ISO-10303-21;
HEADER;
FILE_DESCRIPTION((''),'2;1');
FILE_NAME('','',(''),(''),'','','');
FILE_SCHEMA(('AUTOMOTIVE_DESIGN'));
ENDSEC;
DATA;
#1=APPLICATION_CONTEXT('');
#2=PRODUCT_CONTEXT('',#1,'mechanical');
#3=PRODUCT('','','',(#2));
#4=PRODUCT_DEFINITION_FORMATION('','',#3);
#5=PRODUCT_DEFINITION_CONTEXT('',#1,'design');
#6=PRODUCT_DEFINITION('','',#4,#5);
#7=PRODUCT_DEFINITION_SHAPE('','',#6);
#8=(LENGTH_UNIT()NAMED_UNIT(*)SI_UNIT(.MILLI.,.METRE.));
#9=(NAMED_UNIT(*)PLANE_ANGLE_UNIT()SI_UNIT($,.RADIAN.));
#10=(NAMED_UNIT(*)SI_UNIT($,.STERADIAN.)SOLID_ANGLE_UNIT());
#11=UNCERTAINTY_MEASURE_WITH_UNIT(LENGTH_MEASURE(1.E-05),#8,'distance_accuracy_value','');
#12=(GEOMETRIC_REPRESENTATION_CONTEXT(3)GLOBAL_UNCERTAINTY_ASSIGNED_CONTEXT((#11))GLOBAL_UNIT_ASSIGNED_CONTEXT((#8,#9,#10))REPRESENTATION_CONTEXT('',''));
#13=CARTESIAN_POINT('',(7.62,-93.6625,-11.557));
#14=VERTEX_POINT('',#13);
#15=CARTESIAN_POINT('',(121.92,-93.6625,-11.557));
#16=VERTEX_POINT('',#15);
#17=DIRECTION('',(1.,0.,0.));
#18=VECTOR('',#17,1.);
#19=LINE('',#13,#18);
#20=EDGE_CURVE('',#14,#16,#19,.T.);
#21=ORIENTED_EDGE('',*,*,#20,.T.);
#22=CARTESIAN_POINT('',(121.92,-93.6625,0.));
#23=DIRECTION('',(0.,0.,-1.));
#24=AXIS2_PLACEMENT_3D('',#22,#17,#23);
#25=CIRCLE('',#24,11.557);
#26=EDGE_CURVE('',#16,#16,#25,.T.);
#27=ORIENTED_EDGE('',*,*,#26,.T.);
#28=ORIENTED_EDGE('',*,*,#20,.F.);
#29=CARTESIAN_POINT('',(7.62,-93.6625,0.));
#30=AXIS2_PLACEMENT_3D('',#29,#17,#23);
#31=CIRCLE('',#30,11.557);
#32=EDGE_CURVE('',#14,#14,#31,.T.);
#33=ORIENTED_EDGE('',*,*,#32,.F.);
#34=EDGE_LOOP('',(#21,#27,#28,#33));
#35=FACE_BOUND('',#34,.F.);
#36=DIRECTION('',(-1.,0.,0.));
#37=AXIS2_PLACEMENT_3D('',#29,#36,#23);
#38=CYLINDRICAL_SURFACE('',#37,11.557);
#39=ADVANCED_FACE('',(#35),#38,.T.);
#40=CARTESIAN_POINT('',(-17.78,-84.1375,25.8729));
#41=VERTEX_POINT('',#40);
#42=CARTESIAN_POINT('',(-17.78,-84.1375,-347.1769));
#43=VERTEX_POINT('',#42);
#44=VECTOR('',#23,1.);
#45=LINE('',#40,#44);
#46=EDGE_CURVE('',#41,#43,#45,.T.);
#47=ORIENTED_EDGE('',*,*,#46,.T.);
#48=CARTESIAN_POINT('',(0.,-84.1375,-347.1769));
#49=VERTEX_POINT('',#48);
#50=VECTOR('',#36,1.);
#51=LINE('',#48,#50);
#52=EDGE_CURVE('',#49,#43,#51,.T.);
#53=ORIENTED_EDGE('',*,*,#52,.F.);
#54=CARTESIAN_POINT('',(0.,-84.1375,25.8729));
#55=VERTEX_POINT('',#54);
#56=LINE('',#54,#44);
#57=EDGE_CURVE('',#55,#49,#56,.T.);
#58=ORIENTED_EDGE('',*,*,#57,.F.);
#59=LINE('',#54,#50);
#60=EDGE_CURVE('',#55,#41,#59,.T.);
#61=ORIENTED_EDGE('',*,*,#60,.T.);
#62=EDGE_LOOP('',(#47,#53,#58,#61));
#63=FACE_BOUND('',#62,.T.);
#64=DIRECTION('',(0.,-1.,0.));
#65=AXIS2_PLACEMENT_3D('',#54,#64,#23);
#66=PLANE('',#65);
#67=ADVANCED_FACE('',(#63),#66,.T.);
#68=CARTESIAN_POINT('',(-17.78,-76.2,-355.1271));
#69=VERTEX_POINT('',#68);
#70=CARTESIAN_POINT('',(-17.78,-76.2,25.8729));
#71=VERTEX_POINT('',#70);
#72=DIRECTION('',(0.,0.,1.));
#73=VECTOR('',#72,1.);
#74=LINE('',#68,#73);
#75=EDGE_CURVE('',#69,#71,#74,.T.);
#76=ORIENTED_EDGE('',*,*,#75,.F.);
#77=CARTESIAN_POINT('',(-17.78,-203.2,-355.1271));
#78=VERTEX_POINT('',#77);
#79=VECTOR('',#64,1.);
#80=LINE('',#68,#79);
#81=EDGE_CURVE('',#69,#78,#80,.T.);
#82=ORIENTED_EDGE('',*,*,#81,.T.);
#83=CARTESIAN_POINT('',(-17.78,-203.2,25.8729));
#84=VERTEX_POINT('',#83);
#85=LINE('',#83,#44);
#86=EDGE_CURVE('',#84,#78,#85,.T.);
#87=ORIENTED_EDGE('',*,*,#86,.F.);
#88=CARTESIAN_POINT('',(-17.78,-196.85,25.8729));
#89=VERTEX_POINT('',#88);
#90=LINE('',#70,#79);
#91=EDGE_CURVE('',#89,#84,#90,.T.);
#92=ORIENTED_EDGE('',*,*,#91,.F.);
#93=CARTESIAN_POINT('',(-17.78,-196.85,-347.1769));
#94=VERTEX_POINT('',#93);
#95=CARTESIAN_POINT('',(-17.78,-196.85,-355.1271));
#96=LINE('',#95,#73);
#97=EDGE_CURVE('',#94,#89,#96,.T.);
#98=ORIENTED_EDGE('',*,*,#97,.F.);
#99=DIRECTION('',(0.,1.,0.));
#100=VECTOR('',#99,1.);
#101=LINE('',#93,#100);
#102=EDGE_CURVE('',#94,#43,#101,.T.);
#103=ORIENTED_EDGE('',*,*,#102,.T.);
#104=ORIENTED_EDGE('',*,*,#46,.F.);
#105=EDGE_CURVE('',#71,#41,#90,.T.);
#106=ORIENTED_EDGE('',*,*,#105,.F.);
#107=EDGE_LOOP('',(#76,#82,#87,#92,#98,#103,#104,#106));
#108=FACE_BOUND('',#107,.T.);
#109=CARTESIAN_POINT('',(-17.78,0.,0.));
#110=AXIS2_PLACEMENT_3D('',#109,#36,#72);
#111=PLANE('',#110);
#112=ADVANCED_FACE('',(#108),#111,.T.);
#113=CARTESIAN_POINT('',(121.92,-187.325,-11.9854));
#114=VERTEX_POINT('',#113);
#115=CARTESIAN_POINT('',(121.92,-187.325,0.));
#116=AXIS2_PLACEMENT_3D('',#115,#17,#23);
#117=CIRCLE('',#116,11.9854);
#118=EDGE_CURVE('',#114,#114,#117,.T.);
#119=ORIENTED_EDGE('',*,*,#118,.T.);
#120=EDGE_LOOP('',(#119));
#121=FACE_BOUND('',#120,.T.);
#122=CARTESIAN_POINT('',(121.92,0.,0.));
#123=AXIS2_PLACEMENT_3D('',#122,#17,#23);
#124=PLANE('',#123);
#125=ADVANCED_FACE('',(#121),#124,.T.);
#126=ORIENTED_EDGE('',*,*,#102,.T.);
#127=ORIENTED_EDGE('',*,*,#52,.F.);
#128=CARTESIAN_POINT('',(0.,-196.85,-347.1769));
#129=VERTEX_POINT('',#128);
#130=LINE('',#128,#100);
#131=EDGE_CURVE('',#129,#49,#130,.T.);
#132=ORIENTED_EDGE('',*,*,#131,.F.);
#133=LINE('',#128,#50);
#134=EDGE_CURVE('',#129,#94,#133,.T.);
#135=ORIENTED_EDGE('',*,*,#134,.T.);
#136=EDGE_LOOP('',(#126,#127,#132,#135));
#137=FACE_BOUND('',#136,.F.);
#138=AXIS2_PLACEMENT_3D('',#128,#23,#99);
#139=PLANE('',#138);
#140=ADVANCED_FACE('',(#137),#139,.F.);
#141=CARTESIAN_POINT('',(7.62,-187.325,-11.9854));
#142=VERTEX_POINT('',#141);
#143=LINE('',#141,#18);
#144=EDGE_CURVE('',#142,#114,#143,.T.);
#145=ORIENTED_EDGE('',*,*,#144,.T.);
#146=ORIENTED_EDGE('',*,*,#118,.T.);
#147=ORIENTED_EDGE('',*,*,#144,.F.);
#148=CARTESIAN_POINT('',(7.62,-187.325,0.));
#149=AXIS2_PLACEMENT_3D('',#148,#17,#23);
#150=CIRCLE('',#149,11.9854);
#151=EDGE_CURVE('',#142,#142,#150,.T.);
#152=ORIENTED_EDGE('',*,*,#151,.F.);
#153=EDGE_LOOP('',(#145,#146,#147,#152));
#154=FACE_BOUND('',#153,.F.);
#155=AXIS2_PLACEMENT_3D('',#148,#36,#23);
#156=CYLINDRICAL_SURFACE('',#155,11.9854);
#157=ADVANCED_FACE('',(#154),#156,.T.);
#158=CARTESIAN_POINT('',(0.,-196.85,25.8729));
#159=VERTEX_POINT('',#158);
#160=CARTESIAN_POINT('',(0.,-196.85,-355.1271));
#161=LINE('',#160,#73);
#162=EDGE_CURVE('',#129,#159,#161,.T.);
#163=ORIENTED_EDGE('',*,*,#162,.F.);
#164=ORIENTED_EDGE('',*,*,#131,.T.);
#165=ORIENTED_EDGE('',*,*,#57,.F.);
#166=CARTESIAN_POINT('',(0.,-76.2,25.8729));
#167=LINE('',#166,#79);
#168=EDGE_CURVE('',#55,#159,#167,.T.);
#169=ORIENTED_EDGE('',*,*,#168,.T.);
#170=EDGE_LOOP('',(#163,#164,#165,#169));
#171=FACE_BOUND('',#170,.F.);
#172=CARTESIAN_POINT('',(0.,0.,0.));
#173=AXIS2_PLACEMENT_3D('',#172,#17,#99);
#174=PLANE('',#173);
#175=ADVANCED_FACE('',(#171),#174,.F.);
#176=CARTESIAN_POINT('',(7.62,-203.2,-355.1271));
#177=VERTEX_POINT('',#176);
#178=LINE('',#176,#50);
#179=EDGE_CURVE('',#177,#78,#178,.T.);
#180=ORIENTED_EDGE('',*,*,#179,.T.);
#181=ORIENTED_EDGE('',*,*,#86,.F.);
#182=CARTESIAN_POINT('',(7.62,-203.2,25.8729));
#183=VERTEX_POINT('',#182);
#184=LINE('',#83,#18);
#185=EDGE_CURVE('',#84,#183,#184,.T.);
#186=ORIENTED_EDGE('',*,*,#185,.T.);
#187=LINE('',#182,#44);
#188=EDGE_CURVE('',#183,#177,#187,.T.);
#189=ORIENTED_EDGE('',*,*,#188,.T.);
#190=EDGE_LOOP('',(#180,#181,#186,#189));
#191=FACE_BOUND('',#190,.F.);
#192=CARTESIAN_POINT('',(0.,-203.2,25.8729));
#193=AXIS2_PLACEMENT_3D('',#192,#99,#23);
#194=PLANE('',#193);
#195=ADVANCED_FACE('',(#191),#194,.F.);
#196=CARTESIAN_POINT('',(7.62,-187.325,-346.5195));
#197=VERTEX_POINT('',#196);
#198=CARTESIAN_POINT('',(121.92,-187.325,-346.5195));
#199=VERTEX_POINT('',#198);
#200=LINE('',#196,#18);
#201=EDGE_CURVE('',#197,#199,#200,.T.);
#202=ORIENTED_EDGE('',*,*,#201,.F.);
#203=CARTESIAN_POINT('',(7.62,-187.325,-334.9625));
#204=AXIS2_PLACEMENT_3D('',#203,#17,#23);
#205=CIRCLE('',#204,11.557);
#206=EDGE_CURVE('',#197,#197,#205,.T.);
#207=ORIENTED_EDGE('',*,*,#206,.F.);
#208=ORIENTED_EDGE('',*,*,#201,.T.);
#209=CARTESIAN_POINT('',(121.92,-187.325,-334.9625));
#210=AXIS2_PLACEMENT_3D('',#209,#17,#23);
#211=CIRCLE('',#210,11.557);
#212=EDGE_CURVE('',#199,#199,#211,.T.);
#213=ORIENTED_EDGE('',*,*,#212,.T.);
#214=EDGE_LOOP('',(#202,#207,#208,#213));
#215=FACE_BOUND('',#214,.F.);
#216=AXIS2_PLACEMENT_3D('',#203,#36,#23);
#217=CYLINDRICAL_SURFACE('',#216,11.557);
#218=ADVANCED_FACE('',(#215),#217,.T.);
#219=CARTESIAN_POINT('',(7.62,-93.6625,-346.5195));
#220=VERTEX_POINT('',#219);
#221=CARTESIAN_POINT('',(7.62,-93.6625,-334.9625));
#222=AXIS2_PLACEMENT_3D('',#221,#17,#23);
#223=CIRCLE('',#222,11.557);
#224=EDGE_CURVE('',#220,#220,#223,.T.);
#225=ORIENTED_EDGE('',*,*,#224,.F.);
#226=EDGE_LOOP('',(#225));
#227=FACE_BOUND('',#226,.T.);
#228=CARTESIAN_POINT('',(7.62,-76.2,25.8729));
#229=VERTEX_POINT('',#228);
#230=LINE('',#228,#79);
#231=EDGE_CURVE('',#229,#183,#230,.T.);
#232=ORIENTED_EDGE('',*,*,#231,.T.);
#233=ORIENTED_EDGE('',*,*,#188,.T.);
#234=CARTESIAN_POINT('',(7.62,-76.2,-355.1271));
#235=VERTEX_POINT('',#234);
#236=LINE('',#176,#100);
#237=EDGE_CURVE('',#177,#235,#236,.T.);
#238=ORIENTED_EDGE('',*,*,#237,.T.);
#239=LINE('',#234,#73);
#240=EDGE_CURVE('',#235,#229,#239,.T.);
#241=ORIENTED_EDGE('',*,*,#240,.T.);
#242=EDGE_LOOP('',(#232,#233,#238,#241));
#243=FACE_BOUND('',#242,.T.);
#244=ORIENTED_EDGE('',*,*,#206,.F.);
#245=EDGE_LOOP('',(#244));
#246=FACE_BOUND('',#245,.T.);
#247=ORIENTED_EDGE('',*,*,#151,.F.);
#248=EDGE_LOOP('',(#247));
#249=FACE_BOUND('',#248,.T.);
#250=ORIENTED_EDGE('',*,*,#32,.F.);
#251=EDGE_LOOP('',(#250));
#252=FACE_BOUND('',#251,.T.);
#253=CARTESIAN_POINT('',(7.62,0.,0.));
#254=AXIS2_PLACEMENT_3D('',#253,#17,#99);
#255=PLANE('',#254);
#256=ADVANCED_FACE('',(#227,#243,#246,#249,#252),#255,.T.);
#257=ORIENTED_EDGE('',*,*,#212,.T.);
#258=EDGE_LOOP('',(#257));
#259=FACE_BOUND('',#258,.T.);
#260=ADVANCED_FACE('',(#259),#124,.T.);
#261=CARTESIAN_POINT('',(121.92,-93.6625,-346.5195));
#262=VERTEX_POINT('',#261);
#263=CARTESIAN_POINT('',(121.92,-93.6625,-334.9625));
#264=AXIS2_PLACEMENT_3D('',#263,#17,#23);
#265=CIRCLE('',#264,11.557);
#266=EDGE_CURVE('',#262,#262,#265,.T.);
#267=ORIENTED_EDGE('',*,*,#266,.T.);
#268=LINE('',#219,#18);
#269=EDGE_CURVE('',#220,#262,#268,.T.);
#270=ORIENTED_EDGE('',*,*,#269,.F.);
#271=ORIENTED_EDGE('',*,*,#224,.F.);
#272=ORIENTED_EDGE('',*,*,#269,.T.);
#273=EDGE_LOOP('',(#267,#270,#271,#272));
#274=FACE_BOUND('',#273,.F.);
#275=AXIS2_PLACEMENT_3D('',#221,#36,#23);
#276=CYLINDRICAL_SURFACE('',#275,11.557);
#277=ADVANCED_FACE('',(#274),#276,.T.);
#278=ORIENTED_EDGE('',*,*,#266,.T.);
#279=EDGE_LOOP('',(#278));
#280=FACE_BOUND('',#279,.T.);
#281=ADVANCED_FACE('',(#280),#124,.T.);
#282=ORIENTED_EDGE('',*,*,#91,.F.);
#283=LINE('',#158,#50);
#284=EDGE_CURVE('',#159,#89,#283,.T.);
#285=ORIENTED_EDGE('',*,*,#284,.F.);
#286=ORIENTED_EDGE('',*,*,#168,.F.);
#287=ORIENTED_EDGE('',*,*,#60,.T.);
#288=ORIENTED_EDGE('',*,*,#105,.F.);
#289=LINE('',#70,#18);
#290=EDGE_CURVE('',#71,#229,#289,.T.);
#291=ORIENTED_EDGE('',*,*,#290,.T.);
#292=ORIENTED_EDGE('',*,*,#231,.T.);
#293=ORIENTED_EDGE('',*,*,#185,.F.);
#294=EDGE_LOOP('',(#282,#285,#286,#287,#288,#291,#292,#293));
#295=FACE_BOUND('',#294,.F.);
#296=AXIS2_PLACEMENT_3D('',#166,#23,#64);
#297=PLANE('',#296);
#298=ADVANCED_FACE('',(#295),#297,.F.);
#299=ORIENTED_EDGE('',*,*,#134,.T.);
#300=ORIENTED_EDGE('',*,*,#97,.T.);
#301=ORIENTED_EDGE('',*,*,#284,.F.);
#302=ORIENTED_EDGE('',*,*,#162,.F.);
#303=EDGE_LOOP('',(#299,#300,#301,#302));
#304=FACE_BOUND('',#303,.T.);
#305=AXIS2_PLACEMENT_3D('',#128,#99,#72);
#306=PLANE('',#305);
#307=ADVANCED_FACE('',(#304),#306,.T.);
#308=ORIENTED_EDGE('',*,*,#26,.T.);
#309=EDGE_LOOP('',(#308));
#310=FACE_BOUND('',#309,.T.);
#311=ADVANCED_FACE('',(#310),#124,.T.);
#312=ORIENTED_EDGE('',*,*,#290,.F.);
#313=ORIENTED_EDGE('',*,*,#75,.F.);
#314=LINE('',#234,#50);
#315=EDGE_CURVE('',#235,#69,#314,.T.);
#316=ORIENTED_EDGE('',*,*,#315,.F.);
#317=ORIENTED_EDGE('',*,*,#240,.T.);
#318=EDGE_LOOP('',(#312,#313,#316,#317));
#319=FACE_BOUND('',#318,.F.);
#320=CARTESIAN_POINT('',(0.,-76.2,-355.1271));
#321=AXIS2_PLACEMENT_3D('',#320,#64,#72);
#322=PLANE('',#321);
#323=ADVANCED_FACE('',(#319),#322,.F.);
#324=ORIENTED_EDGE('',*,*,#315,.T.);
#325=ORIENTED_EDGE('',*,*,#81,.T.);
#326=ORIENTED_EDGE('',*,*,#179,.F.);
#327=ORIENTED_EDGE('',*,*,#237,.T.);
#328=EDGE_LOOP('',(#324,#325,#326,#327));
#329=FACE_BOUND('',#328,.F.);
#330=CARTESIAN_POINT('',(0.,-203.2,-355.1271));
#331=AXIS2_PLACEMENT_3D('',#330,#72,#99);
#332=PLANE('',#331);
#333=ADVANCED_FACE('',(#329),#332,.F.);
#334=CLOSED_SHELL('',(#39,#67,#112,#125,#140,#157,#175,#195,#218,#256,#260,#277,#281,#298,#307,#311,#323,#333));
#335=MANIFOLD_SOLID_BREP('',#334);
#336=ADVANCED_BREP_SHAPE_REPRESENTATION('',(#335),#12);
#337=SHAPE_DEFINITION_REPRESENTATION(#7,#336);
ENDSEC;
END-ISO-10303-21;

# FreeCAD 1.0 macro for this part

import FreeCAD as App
import Part
import Sketcher

V = App.Vector
Q = App.Units.Quantity


def add_polygon(sketch, points):
    """Adds a closed chain of lines whose ends are joined by coincident constraints."""
    first, n = sketch.GeometryCount, len(points)
    for a, b in zip(points, points[1:] + points[:1]):
        sketch.addGeometry(Part.LineSegment(App.Vector(*a, 0), App.Vector(*b, 0)), False)
    for i in range(n):
        sketch.addConstraint(Sketcher.Constraint("Coincident", first + i, 2, first + (i + 1) % n, 1))

doc = App.newDocument("Part")
body = doc.addObject("PartDesign::Body", "Body")

# Sketch on YZ plane
sketch1 = body.newObject("Sketcher::SketchObject", "Sketch")
sketch1.AttachmentSupport = (doc.getObject("YZ_Plane"), [""])
sketch1.MapMode = "FlatFace"
add_polygon(sketch1, [(-76, -355), (-76, 26), (-203, 26), (-203, -355)])  # lines 0-3
sketch1.addConstraint([
    Sketcher.Constraint("Vertical", 0),
    Sketcher.Constraint("Horizontal", 1),
    Sketcher.Constraint("Vertical", 2),
    Sketcher.Constraint("Horizontal", 3),
    Sketcher.Constraint("DistanceX", 1, 2, 1, 1, Q("5 in")),
    Sketcher.Constraint("DistanceY", 0, 1, 0, 2, Q("15 in")),
    Sketcher.Constraint("DistanceX", 0, 2, -1, 1, Q("3 in")),
    Sketcher.Constraint("DistanceY", -1, 1, 0, 2, Q("25.873 mm")),
])
pad1 = body.newObject("PartDesign::Pad", "Pad")
pad1.Profile = sketch1
pad1.Length = Q("0.3 in")

# Sketch on YZ plane
sketch2 = body.newObject("Sketcher::SketchObject", "Sketch001")
sketch2.AttachmentSupport = (doc.getObject("YZ_Plane"), [""])
sketch2.MapMode = "FlatFace"
sketch2.AttachmentOffset = App.Placement(V(0, 0, 0.3 * 25.4), App.Rotation())
sketch2.addGeometry([
    Part.Circle(V(-187, 0, 0), V(0, 0, 1), 12),
    Part.Circle(V(-187, -335, 0), V(0, 0, 1), 12),
], False)
sketch2.addConstraint([
    Sketcher.Constraint("PointOnObject", 0, 3, -1),
    Sketcher.Constraint("Vertical", 0, 3, 1, 3),
    Sketcher.Constraint("Diameter", 1, Q("0.91 in")),
    Sketcher.Constraint("Diameter", 0, Q("23.9708 mm")),
    Sketcher.Constraint("DistanceX", 0, 3, -1, 1, Q("7.375 in")),
    Sketcher.Constraint("DistanceY", 1, 3, -1, 1, Q("13.1875 in")),
])
pad2 = body.newObject("PartDesign::Pad", "Pad001")
pad2.Profile = sketch2
pad2.Length = Q("4.5 in")

# Sketch on YZ plane
sketch3 = body.newObject("Sketcher::SketchObject", "Sketch002")
sketch3.AttachmentSupport = (doc.getObject("YZ_Plane"), [""])
sketch3.MapMode = "FlatFace"
sketch3.AttachmentOffset = App.Placement(V(0, 0, 0.3 * 25.4), App.Rotation())
sketch3.addGeometry([
    Part.Circle(V(-94, 0, 0), V(0, 0, 1), 12),
    Part.Circle(V(-94, -335, 0), V(0, 0, 1), 12),
], False)
sketch3.addConstraint([
    Sketcher.Constraint("Equal", 0, 1),
    Sketcher.Constraint("PointOnObject", 0, 3, -1),
    Sketcher.Constraint("Vertical", 0, 3, 1, 3),
    Sketcher.Constraint("Diameter", 0, Q("0.91 in")),
    Sketcher.Constraint("DistanceX", 0, 3, -1, 1, Q("3.6875 in")),
    Sketcher.Constraint("DistanceY", 1, 3, -1, 1, Q("13.1875 in")),
])
pad3 = body.newObject("PartDesign::Pad", "Pad002")
pad3.Profile = sketch3
pad3.Length = Q("4.5 in")

# Sketch on YZ plane
sketch4 = body.newObject("Sketcher::SketchObject", "Sketch003")
sketch4.AttachmentSupport = (doc.getObject("YZ_Plane"), [""])
sketch4.MapMode = "FlatFace"
add_polygon(sketch4, [(-84, 26), (-76, 26), (-76, -355), (-203, -355), (-203, 26), (-197, 26), (-197, -347), (-84, -347)])  # lines 0-7
sketch4.addConstraint([
    Sketcher.Constraint("Horizontal", 0),
    Sketcher.Constraint("Vertical", 1),
    Sketcher.Constraint("Horizontal", 2),
    Sketcher.Constraint("Vertical", 3),
    Sketcher.Constraint("Horizontal", 4),
    Sketcher.Constraint("Vertical", 5),
    Sketcher.Constraint("Horizontal", 6),
    Sketcher.Constraint("Vertical", 7),
    Sketcher.Constraint("Horizontal", 0, 2, 3, 2),
    Sketcher.Constraint("DistanceX", 2, 2, 2, 1, Q("5 in")),
    Sketcher.Constraint("DistanceY", 1, 2, 1, 1, Q("15 in")),
    Sketcher.Constraint("DistanceX", 0, 2, -1, 1, Q("3 in")),
    Sketcher.Constraint("DistanceY", 2, 2, 5, 2, Q("0.313 in")),
    Sketcher.Constraint("DistanceX", 4, 1, 4, 2, Q("0.25 in")),
    Sketcher.Constraint("DistanceX", 0, 1, 0, 2, Q("0.3125 in")),
    Sketcher.Constraint("DistanceY", -1, 1, 0, 2, Q("25.873 mm")),
])
pad4 = body.newObject("PartDesign::Pad", "Pad003")
pad4.Profile = sketch4
pad4.Length = Q("0.7 in")
pad4.Reversed = True

doc.recompute()
